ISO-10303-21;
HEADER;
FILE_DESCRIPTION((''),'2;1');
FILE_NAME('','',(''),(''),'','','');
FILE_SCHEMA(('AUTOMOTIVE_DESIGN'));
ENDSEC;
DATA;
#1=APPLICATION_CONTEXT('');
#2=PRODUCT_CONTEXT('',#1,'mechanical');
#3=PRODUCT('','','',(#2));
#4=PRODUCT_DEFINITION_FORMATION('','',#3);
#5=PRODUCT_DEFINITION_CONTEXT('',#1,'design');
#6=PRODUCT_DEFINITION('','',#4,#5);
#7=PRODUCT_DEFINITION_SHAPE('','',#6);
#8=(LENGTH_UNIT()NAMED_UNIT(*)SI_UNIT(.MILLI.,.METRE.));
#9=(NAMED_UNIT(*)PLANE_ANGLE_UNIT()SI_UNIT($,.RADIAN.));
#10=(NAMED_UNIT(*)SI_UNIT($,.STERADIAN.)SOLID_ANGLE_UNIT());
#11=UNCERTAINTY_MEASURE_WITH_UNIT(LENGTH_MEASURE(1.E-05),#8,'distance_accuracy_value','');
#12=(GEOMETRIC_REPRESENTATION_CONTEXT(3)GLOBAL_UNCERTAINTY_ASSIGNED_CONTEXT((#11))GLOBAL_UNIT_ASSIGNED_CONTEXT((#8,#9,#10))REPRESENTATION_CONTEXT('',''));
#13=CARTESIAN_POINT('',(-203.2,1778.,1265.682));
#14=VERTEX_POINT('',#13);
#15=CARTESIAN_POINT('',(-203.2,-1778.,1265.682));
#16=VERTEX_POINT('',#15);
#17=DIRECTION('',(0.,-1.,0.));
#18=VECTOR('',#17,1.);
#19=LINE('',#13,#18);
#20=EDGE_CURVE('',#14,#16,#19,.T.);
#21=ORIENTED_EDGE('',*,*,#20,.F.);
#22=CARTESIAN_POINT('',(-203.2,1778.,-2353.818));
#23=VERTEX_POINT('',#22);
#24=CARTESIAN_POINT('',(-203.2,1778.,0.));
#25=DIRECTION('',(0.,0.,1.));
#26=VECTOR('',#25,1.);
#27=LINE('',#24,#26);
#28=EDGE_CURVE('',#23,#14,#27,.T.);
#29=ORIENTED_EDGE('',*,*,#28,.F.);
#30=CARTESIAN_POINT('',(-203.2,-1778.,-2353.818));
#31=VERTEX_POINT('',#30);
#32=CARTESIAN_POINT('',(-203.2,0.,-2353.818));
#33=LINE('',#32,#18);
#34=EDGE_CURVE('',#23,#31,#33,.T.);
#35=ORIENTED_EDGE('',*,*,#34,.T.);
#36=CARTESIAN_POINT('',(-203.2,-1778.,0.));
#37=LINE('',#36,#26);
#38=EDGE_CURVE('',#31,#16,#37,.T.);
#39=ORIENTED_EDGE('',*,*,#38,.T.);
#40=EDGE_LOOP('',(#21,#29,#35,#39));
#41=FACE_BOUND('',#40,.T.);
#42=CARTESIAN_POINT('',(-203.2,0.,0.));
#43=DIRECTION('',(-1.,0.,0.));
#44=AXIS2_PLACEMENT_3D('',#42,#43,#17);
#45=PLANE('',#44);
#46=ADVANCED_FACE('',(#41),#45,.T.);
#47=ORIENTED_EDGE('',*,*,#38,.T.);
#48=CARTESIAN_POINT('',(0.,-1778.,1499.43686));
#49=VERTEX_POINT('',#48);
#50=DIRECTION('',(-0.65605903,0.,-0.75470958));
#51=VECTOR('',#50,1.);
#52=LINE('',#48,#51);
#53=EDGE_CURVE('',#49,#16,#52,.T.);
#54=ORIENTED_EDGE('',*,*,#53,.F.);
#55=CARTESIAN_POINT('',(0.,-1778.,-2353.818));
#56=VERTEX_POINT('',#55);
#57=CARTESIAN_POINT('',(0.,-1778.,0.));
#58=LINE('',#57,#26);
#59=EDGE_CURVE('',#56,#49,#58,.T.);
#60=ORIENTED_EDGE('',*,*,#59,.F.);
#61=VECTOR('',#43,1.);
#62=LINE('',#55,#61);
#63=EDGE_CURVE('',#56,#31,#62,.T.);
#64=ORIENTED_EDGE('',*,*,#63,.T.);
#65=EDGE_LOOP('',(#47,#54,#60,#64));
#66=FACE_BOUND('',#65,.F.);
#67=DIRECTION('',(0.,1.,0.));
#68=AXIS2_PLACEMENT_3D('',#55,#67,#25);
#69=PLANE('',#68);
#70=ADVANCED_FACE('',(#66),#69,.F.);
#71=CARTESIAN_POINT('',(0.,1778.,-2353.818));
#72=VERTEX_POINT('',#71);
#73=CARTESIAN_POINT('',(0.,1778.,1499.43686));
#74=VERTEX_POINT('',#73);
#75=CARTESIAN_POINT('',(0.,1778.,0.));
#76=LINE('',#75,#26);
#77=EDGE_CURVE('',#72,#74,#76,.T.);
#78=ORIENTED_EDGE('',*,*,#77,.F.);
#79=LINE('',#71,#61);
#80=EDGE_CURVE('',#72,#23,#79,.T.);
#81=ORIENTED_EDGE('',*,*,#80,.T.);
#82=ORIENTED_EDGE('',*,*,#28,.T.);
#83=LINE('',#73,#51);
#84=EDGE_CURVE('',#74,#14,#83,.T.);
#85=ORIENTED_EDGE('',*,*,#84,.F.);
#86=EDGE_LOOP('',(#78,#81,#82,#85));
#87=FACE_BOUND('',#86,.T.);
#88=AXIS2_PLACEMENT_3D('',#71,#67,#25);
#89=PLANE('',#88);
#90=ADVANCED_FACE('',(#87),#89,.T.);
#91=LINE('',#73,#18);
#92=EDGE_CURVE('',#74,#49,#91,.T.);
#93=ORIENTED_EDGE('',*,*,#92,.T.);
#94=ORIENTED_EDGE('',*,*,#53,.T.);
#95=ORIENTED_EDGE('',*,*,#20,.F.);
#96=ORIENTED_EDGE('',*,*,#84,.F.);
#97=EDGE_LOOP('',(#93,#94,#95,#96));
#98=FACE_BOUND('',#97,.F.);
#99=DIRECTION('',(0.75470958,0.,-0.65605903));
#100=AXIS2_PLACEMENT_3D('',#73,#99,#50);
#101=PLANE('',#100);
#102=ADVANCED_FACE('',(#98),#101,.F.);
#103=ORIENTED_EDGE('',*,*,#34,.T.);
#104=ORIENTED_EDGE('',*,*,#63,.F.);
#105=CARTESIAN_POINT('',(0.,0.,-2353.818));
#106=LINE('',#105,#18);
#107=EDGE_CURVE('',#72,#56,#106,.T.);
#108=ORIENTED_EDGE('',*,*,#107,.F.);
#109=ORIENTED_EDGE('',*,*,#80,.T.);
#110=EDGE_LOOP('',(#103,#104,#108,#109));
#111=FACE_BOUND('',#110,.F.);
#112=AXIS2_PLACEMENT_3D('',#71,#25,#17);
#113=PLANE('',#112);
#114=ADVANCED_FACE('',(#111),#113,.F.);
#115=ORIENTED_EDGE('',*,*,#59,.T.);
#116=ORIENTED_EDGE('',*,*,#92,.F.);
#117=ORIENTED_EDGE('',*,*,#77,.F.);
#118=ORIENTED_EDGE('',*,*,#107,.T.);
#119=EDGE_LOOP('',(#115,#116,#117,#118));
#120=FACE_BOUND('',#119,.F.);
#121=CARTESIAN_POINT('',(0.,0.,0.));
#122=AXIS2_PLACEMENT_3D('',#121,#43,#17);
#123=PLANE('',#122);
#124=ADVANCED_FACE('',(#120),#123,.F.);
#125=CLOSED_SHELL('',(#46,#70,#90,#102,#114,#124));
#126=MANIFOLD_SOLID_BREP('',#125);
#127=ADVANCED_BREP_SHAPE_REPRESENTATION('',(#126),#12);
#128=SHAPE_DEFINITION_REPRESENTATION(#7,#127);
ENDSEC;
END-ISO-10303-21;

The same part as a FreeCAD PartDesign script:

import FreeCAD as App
import Part
import Sketcher
Q = App.Units.Quantity


def add_polygon(sketch, points):
    """Adds a closed chain of lines whose ends are joined by coincident constraints."""
    first, n = sketch.GeometryCount, len(points)
    for a, b in zip(points, points[1:] + points[:1]):
        sketch.addGeometry(Part.LineSegment(App.Vector(*a, 0), App.Vector(*b, 0)), False)
    for i in range(n):
        sketch.addConstraint(Sketcher.Constraint("Coincident", first + i, 2, first + (i + 1) % n, 1))

doc = App.newDocument("Part")
body = doc.addObject("PartDesign::Body", "Body")

sketch1 = doc.addObject("Sketcher::SketchObject", "Sketch")
body.addObject(sketch1)
sketch1.AttachmentSupport = (doc.YZ_Plane, [""])
sketch1.MapMode = "FlatFace"
add_polygon(sketch1, [(-1778, 2354), (-1778, -2354), (1778, -2354), (1778, 2354)])
sketch1.addConstraint([
    Sketcher.Constraint("Vertical", 0),
    Sketcher.Constraint("Horizontal", 1),
    Sketcher.Constraint("Vertical", 2),
    Sketcher.Constraint("Horizontal", 3),
    Sketcher.Constraint("Symmetric", 0, 2, 2, 2, -1, 1),
    Sketcher.Constraint("DistanceX", 1, 1, 1, 2, Q("140 in")),
    Sketcher.Constraint("DistanceY", 0, 2, 0, 1, Q("185.34 in")),
])
pad1 = doc.addObject("PartDesign::Pad", "Pad")
body.addObject(pad1)
pad1.Profile = sketch1
pad1.Length = Q("8 in")

sketch2 = doc.addObject("Sketcher::SketchObject", "Sketch001")
body.addObject(sketch2)
sketch2.AttachmentSupport = (doc.XZ_Plane, [""])
sketch2.MapMode = "FlatFace"
sketch2.AttachmentOffset = App.Placement(App.Vector(0, 0, 70 * 25.4), App.Rotation())
add_polygon(sketch2, [(0, 1499), (203, 1266), (203, 2354), (0, 2354)])
sketch2.addConstraint([
    Sketcher.Constraint("Vertical", 1),
    Sketcher.Constraint("Horizontal", 2),
    Sketcher.Constraint("Vertical", 3),
    Sketcher.Constraint("PointOnObject", 2, 2, -2),
    Sketcher.Constraint("DistanceX", 2, 2, 2, 1, Q("8 in")),
    Sketcher.Constraint("Angle", 0, Q("-49 deg")),
    Sketcher.Constraint("DistanceY", 1, 1, 1, 2, Q("42.84 in")),
    Sketcher.Constraint("DistanceY", -1, 1, 0, 2, Q("49.83 in")),
])
pocket1 = doc.addObject("PartDesign::Pocket", "Pocket")
body.addObject(pocket1)
pocket1.Profile = sketch2
pocket1.Length = Q("140 in")
body2 = doc.addObject("PartDesign::Body", "Body001")
doc.recompute()

body.Placement = App.Placement(App.Vector(0, 0, 0), App.Rotation(App.Vector(0, 0, -1), 180))
boolean = doc.addObject("PartDesign::Boolean", "Boolean")
body2.addObject(boolean)
boolean.Type = "Fuse"
boolean.addObjects([body])

doc.recompute()
